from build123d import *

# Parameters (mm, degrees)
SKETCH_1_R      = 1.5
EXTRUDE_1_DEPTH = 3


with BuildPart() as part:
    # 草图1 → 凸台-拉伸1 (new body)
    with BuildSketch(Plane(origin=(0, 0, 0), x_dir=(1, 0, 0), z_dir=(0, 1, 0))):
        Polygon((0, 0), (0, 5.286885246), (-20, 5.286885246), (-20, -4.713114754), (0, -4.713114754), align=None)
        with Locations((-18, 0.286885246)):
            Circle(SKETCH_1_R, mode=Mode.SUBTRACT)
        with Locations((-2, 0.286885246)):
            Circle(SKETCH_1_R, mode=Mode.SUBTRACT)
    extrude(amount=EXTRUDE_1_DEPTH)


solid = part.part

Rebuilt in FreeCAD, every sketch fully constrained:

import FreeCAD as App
import Part
import Sketcher

V = App.Vector

doc = App.newDocument("Part")
body = doc.addObject("PartDesign::Body", "Body")

# Sketch on XZ plane
sketch1 = body.newObject("Sketcher::SketchObject", "Sketch")
sketch1.AttachmentSupport = (doc.getObject("XZ_Plane"), [""])
sketch1.MapMode = "FlatFace"
sketch1.addGeometry([
    Part.LineSegment(V(0, -5.3, 0), V(-20, -5.3, 0)),  # 0
    Part.LineSegment(V(-20, -5.3, 0), V(-20, 4.7, 0)),  # 1
    Part.LineSegment(V(-20, 4.7, 0), V(0, 4.7, 0)),  # 2
    Part.LineSegment(V(0, 4.7, 0), V(0, -5.3, 0)),  # 3
    Part.Circle(V(-18, -0.3, 0), V(0, 0, 1), 1.5),  # 4
    Part.Circle(V(-2, -0.3, 0), V(0, 0, 1), 1.5),  # 5
], False)
sketch1.addConstraint([
    Sketcher.Constraint("Coincident", 0, 2, 1, 1),
    Sketcher.Constraint("Coincident", 1, 2, 2, 1),
    Sketcher.Constraint("Coincident", 2, 2, 3, 1),
    Sketcher.Constraint("Coincident", 3, 2, 0, 1),
    Sketcher.Constraint("Horizontal", 0),
    Sketcher.Constraint("Vertical", 1),
    Sketcher.Constraint("Horizontal", 2),
    Sketcher.Constraint("Vertical", 3),
    Sketcher.Constraint("Equal", 4, 5),
    Sketcher.Constraint("PointOnObject", 2, 2, -2),
    Sketcher.Constraint("Horizontal", 4, 3, 5, 3),
    Sketcher.Constraint("Diameter", 4, 3.0),
    Sketcher.Constraint("DistanceX", 0, 2, 0, 1, 20.0),
    Sketcher.Constraint("DistanceY", 1, 1, 1, 2, 10.0),
    Sketcher.Constraint("DistanceX", 4, 3, -1, 1, 18.0),
    Sketcher.Constraint("DistanceX", 5, 3, -1, 1, 2.0),
    Sketcher.Constraint("DistanceY", 0, 2, 4, 3, 5.0),
    Sketcher.Constraint("DistanceY", 4, 3, -1, 1, 0.286885),
])
pad1 = body.newObject("PartDesign::Pad", "Pad")
pad1.Profile = sketch1
pad1.Length = 3
pad1.Reversed = True

doc.recompute()
